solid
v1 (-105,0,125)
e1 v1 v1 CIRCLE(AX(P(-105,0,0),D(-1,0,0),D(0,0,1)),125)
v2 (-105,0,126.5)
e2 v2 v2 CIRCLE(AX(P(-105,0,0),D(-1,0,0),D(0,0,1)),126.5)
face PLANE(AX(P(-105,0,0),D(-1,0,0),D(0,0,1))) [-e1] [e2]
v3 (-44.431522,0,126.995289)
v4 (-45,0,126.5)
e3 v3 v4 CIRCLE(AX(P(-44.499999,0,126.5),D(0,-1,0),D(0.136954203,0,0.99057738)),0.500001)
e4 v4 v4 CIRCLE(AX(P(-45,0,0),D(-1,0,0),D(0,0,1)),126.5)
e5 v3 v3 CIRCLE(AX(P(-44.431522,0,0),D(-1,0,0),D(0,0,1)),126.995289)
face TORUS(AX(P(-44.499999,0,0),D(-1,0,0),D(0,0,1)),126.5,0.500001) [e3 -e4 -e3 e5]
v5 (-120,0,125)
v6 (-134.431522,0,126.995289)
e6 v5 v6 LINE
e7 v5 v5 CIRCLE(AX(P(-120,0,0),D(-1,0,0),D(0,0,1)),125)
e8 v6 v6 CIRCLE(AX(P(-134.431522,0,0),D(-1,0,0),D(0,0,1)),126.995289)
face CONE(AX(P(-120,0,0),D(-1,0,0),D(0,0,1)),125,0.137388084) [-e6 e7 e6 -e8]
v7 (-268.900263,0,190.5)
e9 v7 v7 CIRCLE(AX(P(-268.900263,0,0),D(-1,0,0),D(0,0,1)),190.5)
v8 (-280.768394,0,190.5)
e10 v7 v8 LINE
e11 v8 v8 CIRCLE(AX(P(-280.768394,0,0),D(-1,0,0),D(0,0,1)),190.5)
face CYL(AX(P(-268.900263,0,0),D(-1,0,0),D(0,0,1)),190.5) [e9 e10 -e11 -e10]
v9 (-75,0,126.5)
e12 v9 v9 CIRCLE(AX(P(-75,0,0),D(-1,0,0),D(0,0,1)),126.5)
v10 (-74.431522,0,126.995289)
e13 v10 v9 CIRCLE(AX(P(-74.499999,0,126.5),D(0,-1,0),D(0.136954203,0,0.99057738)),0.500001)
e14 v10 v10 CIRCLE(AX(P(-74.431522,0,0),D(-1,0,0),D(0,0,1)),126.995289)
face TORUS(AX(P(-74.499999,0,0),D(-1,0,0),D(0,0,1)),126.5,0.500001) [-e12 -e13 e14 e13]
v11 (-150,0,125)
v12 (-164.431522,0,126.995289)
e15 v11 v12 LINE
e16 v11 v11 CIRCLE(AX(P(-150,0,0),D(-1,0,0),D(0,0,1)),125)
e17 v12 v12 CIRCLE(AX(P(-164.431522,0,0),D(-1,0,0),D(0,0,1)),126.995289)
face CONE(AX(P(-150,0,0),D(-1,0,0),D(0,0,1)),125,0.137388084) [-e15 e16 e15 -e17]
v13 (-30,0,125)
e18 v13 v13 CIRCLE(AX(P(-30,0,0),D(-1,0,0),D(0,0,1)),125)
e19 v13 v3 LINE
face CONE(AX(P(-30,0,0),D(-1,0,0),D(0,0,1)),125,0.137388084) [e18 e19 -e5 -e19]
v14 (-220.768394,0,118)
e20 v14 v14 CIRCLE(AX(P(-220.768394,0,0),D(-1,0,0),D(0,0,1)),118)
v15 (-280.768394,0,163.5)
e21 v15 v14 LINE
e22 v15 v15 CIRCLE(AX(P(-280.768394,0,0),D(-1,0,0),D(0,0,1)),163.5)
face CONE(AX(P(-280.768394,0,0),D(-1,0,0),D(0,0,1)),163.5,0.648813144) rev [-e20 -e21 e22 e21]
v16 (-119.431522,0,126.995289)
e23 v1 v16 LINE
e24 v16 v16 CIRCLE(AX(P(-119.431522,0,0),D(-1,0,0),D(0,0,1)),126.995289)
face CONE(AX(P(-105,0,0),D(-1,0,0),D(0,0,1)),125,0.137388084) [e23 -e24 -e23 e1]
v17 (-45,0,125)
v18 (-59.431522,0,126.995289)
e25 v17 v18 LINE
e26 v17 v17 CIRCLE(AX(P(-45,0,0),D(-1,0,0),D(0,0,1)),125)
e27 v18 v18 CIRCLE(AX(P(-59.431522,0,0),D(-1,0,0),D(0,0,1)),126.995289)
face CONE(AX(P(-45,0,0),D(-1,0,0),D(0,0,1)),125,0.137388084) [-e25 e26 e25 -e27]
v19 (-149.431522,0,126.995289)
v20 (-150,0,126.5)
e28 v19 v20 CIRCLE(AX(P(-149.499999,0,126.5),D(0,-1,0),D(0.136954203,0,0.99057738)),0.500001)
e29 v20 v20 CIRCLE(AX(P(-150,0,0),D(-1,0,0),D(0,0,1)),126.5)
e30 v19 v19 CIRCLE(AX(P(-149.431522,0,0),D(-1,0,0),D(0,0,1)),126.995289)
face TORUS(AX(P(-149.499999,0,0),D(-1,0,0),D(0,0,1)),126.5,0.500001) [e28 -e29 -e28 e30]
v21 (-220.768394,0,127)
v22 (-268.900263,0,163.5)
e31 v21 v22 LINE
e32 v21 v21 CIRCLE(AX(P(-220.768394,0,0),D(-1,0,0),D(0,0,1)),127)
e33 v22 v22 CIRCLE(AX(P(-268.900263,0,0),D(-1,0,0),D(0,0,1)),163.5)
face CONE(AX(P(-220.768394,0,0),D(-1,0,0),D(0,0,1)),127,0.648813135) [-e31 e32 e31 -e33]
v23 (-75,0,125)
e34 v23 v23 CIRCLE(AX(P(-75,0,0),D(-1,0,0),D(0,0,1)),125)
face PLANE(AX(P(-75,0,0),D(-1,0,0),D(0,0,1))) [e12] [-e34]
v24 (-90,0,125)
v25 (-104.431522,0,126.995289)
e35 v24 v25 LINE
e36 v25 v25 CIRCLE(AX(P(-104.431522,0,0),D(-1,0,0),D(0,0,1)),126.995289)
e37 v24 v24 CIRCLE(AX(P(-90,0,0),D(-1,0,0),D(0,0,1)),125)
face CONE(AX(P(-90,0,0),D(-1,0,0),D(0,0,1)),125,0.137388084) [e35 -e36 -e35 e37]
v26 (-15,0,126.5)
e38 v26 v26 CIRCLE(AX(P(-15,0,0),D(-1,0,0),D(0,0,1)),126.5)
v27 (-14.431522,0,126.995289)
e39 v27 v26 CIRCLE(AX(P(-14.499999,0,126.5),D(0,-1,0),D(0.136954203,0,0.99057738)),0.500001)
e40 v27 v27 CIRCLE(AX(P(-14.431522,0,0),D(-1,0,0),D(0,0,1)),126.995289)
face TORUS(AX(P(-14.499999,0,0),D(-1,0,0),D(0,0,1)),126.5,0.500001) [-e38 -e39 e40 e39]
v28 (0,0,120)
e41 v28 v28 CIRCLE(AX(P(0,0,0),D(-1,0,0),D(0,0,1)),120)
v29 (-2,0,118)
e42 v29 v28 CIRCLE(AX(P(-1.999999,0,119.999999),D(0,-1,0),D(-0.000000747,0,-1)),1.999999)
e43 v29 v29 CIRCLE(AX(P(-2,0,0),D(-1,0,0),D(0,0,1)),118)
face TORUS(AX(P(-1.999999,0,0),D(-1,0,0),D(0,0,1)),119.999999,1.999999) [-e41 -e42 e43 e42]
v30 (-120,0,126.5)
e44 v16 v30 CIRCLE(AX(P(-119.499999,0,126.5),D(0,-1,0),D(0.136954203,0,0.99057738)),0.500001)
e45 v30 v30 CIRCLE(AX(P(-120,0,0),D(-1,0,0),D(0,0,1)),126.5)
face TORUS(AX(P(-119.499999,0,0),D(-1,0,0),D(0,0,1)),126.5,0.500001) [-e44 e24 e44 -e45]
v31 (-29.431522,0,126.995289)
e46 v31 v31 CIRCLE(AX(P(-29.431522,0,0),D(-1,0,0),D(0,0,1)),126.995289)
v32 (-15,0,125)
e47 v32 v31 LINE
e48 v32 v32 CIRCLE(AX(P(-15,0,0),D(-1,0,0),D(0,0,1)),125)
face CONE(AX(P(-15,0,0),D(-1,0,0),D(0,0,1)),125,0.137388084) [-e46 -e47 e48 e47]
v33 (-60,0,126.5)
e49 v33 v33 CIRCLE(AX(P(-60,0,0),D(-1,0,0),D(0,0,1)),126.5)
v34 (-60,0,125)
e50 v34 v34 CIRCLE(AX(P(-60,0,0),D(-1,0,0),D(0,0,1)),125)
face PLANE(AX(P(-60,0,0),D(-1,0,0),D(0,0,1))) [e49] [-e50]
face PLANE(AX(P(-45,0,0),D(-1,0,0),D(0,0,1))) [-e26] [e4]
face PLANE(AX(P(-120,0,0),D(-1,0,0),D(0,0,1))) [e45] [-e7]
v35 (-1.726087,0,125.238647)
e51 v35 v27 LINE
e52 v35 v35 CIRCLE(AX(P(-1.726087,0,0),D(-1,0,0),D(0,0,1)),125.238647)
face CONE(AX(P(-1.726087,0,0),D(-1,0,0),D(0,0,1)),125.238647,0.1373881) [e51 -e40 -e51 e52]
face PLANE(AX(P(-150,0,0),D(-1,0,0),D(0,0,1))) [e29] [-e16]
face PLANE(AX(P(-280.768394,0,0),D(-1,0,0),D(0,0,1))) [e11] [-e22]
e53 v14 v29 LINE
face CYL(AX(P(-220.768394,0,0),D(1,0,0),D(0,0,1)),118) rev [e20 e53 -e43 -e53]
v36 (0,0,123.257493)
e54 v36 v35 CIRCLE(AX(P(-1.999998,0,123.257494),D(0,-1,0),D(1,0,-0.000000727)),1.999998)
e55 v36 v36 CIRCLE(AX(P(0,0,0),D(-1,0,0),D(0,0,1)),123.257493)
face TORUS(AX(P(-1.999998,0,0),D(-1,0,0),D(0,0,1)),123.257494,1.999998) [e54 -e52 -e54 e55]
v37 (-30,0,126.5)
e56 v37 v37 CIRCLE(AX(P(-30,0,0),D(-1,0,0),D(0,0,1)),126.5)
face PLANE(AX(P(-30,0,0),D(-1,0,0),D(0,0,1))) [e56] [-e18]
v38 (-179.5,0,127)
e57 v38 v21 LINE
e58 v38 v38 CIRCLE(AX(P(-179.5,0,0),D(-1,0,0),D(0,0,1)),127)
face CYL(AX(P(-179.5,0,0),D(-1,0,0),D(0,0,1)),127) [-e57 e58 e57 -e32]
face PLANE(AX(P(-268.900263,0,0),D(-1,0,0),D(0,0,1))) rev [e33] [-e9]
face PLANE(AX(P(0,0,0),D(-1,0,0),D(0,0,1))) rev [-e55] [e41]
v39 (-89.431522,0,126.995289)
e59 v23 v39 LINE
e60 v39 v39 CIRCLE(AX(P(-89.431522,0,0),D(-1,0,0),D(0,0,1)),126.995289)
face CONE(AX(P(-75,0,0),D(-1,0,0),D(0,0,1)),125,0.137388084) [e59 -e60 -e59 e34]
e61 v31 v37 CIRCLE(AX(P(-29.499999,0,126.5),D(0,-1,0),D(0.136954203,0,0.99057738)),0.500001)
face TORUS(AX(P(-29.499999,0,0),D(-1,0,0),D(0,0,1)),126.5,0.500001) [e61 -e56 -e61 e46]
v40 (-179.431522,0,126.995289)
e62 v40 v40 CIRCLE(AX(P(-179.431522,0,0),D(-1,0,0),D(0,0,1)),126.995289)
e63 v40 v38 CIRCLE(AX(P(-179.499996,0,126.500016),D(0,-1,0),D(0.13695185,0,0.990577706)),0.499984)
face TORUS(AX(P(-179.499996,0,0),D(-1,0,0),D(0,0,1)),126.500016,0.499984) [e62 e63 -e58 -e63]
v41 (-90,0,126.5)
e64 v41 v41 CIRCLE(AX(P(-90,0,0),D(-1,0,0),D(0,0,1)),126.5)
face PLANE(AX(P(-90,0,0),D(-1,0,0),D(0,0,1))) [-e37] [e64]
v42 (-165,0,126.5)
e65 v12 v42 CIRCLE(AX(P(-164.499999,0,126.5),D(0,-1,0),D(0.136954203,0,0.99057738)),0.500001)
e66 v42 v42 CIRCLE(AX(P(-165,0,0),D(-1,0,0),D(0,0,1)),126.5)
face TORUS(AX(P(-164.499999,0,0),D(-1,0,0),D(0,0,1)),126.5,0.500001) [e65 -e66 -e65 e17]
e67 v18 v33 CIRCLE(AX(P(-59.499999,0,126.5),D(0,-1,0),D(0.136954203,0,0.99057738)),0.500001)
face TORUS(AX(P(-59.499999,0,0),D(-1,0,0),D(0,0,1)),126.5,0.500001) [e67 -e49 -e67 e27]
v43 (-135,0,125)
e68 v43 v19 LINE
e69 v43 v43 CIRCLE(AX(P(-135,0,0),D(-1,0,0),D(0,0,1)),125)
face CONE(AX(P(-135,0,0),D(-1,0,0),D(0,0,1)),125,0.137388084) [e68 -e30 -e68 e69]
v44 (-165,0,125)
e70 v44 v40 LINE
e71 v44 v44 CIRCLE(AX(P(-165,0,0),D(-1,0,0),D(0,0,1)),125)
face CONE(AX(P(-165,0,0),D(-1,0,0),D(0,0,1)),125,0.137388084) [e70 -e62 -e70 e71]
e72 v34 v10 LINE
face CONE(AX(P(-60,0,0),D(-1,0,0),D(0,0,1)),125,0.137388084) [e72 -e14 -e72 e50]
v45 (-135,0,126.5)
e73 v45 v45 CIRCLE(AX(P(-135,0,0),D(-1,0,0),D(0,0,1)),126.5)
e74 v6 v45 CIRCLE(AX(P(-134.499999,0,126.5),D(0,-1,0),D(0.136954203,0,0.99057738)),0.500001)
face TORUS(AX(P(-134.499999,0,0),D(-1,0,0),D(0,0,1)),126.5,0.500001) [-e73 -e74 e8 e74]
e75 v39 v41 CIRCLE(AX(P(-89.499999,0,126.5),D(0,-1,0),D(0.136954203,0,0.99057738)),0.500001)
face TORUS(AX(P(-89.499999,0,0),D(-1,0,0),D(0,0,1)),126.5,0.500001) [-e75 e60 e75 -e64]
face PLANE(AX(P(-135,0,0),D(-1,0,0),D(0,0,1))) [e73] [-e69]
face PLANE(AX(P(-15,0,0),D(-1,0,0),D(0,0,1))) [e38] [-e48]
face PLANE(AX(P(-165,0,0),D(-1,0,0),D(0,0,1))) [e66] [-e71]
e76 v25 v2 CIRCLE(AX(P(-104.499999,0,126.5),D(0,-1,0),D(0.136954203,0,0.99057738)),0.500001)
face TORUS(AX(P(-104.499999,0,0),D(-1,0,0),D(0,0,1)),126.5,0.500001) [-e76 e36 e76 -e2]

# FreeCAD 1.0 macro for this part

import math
import FreeCAD as App
import Part
import Sketcher
from FreeCAD import Vector

doc = App.newDocument("Part")
body = doc.addObject("PartDesign::Body", "Body")

sketch1 = body.newObject("Sketcher::SketchObject", "Sketch")
sketch1.AttachmentSupport = (doc.getObject("XZ_Plane"), [""])
sketch1.MapMode = "FlatFace"
sketch1.addGeometry([
    Part.ArcOfCircle(Part.Circle(Vector(-1.999998, 123.257494, 0), Vector(0, 0, 1), 1.999998), math.radians(-0.000042), math.radians(82.128275)),
    Part.LineSegment(Vector(-1.726087, 125.238647, 0), Vector(-14.431522, 126.995289, 0)),
    Part.ArcOfCircle(Part.Circle(Vector(-14.499999, 126.5, 0), Vector(0, 0, 1), 0.500001), math.radians(82.128363), math.radians(179.999946)),
    Part.LineSegment(Vector(-15, 126.5, 0), Vector(-15, 125, 0)),
    Part.LineSegment(Vector(-15, 125, 0), Vector(-29.431522, 126.995289, 0)),
    Part.ArcOfCircle(Part.Circle(Vector(-29.499999, 126.5, 0), Vector(0, 0, 1), 0.500001), math.radians(82.128363), math.radians(179.999946)),
    Part.LineSegment(Vector(-30, 126.5, 0), Vector(-30, 125, 0)),
    Part.LineSegment(Vector(-30, 125, 0), Vector(-44.431522, 126.995289, 0)),
    Part.ArcOfCircle(Part.Circle(Vector(-44.499999, 126.5, 0), Vector(0, 0, 1), 0.500001), math.radians(82.128363), math.radians(179.999946)),
    Part.LineSegment(Vector(-45, 126.5, 0), Vector(-45, 125, 0)),
    Part.LineSegment(Vector(-45, 125, 0), Vector(-59.431522, 126.995289, 0)),
    Part.ArcOfCircle(Part.Circle(Vector(-59.499999, 126.5, 0), Vector(0, 0, 1), 0.500001), math.radians(82.128363), math.radians(179.999946)),
    Part.LineSegment(Vector(-60, 126.5, 0), Vector(-60, 125, 0)),
    Part.LineSegment(Vector(-60, 125, 0), Vector(-74.431522, 126.995289, 0)),
    Part.ArcOfCircle(Part.Circle(Vector(-74.499999, 126.5, 0), Vector(0, 0, 1), 0.500001), math.radians(82.128363), math.radians(179.999946)),
    Part.LineSegment(Vector(-75, 126.5, 0), Vector(-75, 125, 0)),
    Part.LineSegment(Vector(-75, 125, 0), Vector(-89.431522, 126.995289, 0)),
    Part.ArcOfCircle(Part.Circle(Vector(-89.499999, 126.5, 0), Vector(0, 0, 1), 0.500001), math.radians(82.128363), math.radians(179.999946)),
    Part.LineSegment(Vector(-90, 126.5, 0), Vector(-90, 125, 0)),
    Part.LineSegment(Vector(-90, 125, 0), Vector(-104.431522, 126.995289, 0)),
    Part.ArcOfCircle(Part.Circle(Vector(-104.499999, 126.5, 0), Vector(0, 0, 1), 0.500001), math.radians(82.128363), math.radians(179.999946)),
    Part.LineSegment(Vector(-105, 126.5, 0), Vector(-105, 125, 0)),
    Part.LineSegment(Vector(-105, 125, 0), Vector(-119.431522, 126.995289, 0)),
    Part.ArcOfCircle(Part.Circle(Vector(-119.499999, 126.5, 0), Vector(0, 0, 1), 0.500001), math.radians(82.128363), math.radians(179.999946)),
    Part.LineSegment(Vector(-120, 126.5, 0), Vector(-120, 125, 0)),
    Part.LineSegment(Vector(-120, 125, 0), Vector(-134.431522, 126.995289, 0)),
    Part.ArcOfCircle(Part.Circle(Vector(-134.499999, 126.5, 0), Vector(0, 0, 1), 0.500001), math.radians(82.128363), math.radians(179.999946)),
    Part.LineSegment(Vector(-135, 126.5, 0), Vector(-135, 125, 0)),
    Part.LineSegment(Vector(-135, 125, 0), Vector(-149.431522, 126.995289, 0)),
    Part.ArcOfCircle(Part.Circle(Vector(-149.499999, 126.5, 0), Vector(0, 0, 1), 0.500001), math.radians(82.128363), math.radians(179.999946)),
    Part.LineSegment(Vector(-150, 126.5, 0), Vector(-150, 125, 0)),
    Part.LineSegment(Vector(-150, 125, 0), Vector(-164.431522, 126.995289, 0)),
    Part.ArcOfCircle(Part.Circle(Vector(-164.499999, 126.5, 0), Vector(0, 0, 1), 0.500001), math.radians(82.128363), math.radians(179.999946)),
    Part.LineSegment(Vector(-165, 126.5, 0), Vector(-165, 125, 0)),
    Part.LineSegment(Vector(-165, 125, 0), Vector(-179.431522, 126.995289, 0)),
    Part.ArcOfCircle(Part.Circle(Vector(-179.499996, 126.500016, 0), Vector(0, 0, 1), 0.499984), math.radians(82.128499), math.radians(90.000483)),
    Part.LineSegment(Vector(-179.5, 127, 0), Vector(-220.768394, 127, 0)),
    Part.LineSegment(Vector(-220.768394, 127, 0), Vector(-268.900263, 163.5, 0)),
    Part.LineSegment(Vector(-268.900263, 163.5, 0), Vector(-268.900263, 190.5, 0)),
    Part.LineSegment(Vector(-268.900263, 190.5, 0), Vector(-280.768394, 190.5, 0)),
    Part.LineSegment(Vector(-280.768394, 190.5, 0), Vector(-280.768394, 163.5, 0)),
    Part.LineSegment(Vector(-280.768394, 163.5, 0), Vector(-220.768394, 118, 0)),
    Part.LineSegment(Vector(-220.768394, 118, 0), Vector(-2, 118, 0)),
    Part.ArcOfCircle(Part.Circle(Vector(-1.999999, 119.999999, 0), Vector(0, 0, 1), 1.999999), math.radians(-90.000043), math.radians(0.000043)),
    Part.LineSegment(Vector(0, 120, 0), Vector(0, 123.257493, 0)),
], False)
sketch1.addConstraint([
    Sketcher.Constraint("Tangent", 0, 2, 1, 1),
    Sketcher.Constraint("Coincident", 1, 2, 2, 1),
    Sketcher.Constraint("Tangent", 2, 2, 3, 1),
    Sketcher.Constraint("Coincident", 3, 2, 4, 1),
    Sketcher.Constraint("Coincident", 4, 2, 5, 1),
    Sketcher.Constraint("Tangent", 5, 2, 6, 1),
    Sketcher.Constraint("Coincident", 6, 2, 7, 1),
    Sketcher.Constraint("Coincident", 7, 2, 8, 1),
    Sketcher.Constraint("Tangent", 8, 2, 9, 1),
    Sketcher.Constraint("Coincident", 9, 2, 10, 1),
    Sketcher.Constraint("Coincident", 10, 2, 11, 1),
    Sketcher.Constraint("Tangent", 11, 2, 12, 1),
    Sketcher.Constraint("Coincident", 12, 2, 13, 1),
    Sketcher.Constraint("Coincident", 13, 2, 14, 1),
    Sketcher.Constraint("Tangent", 14, 2, 15, 1),
    Sketcher.Constraint("Coincident", 15, 2, 16, 1),
    Sketcher.Constraint("Coincident", 16, 2, 17, 1),
    Sketcher.Constraint("Tangent", 17, 2, 18, 1),
    Sketcher.Constraint("Coincident", 18, 2, 19, 1),
    Sketcher.Constraint("Coincident", 19, 2, 20, 1),
    Sketcher.Constraint("Tangent", 20, 2, 21, 1),
    Sketcher.Constraint("Coincident", 21, 2, 22, 1),
    Sketcher.Constraint("Coincident", 22, 2, 23, 1),
    Sketcher.Constraint("Tangent", 23, 2, 24, 1),
    Sketcher.Constraint("Coincident", 24, 2, 25, 1),
    Sketcher.Constraint("Coincident", 25, 2, 26, 1),
    Sketcher.Constraint("Tangent", 26, 2, 27, 1),
    Sketcher.Constraint("Coincident", 27, 2, 28, 1),
    Sketcher.Constraint("Coincident", 28, 2, 29, 1),
    Sketcher.Constraint("Tangent", 29, 2, 30, 1),
    Sketcher.Constraint("Coincident", 30, 2, 31, 1),
    Sketcher.Constraint("Coincident", 31, 2, 32, 1),
    Sketcher.Constraint("Tangent", 32, 2, 33, 1),
    Sketcher.Constraint("Coincident", 33, 2, 34, 1),
    Sketcher.Constraint("Coincident", 34, 2, 35, 1),
    Sketcher.Constraint("Coincident", 35, 2, 36, 1),
    Sketcher.Constraint("Coincident", 36, 2, 37, 1),
    Sketcher.Constraint("Coincident", 37, 2, 38, 1),
    Sketcher.Constraint("Coincident", 38, 2, 39, 1),
    Sketcher.Constraint("Coincident", 39, 2, 40, 1),
    Sketcher.Constraint("Coincident", 40, 2, 41, 1),
    Sketcher.Constraint("Coincident", 41, 2, 42, 1),
    Sketcher.Constraint("Tangent", 42, 2, 43, 1),
    Sketcher.Constraint("Tangent", 43, 2, 44, 1),
    Sketcher.Constraint("Tangent", 44, 2, 0, 1),
    Sketcher.Constraint("Vertical", 3),
    Sketcher.Constraint("Vertical", 6),
    Sketcher.Constraint("Vertical", 9),
    Sketcher.Constraint("Vertical", 12),
    Sketcher.Constraint("Vertical", 15),
    Sketcher.Constraint("Vertical", 18),
    Sketcher.Constraint("Vertical", 21),
    Sketcher.Constraint("Vertical", 24),
    Sketcher.Constraint("Vertical", 27),
    Sketcher.Constraint("Vertical", 30),
    Sketcher.Constraint("Vertical", 33),
    Sketcher.Constraint("Horizontal", 36),
    Sketcher.Constraint("Vertical", 38),
    Sketcher.Constraint("Horizontal", 39),
    Sketcher.Constraint("Vertical", 40),
    Sketcher.Constraint("Horizontal", 42),
    Sketcher.Constraint("Vertical", 44),
    Sketcher.Constraint("Equal", 2, 5),
    Sketcher.Constraint("Equal", 5, 8),
    Sketcher.Constraint("Equal", 8, 11),
    Sketcher.Constraint("Equal", 11, 14),
    Sketcher.Constraint("Equal", 14, 17),
    Sketcher.Constraint("Equal", 17, 20),
    Sketcher.Constraint("Equal", 20, 23),
    Sketcher.Constraint("Equal", 23, 26),
    Sketcher.Constraint("Equal", 26, 29),
    Sketcher.Constraint("Equal", 29, 32),
    Sketcher.Constraint("Equal", 0, 43),
    Sketcher.Constraint("PointOnObject", 43, 2, -2),
    Sketcher.Constraint("Parallel", 1, 4),
    Sketcher.Constraint("Parallel", 4, 7),
    Sketcher.Constraint("Parallel", 7, 10),
    Sketcher.Constraint("Parallel", 10, 13),
    Sketcher.Constraint("Parallel", 13, 16),
    Sketcher.Constraint("Parallel", 16, 19),
    Sketcher.Constraint("Parallel", 19, 22),
    Sketcher.Constraint("Parallel", 22, 25),
    Sketcher.Constraint("Parallel", 25, 28),
    Sketcher.Constraint("Parallel", 28, 31),
    Sketcher.Constraint("Parallel", 31, 34),
    Sketcher.Constraint("Parallel", 37, 41),
    Sketcher.Constraint("Horizontal", 2, 3, 5, 3),
    Sketcher.Constraint("Horizontal", 5, 3, 8, 3),
    Sketcher.Constraint("Horizontal", 8, 3, 11, 3),
    Sketcher.Constraint("Horizontal", 11, 3, 14, 3),
    Sketcher.Constraint("Horizontal", 14, 3, 17, 3),
    Sketcher.Constraint("Horizontal", 17, 3, 20, 3),
    Sketcher.Constraint("Horizontal", 20, 3, 23, 3),
    Sketcher.Constraint("Horizontal", 23, 3, 26, 3),
    Sketcher.Constraint("Horizontal", 26, 3, 29, 3),
    Sketcher.Constraint("Horizontal", 29, 3, 32, 3),
    Sketcher.Constraint("Horizontal", 1, 2, 4, 2),
    Sketcher.Constraint("Horizontal", 3, 2, 6, 2),
    Sketcher.Constraint("Horizontal", 4, 2, 7, 2),
    Sketcher.Constraint("Horizontal", 6, 2, 9, 2),
    Sketcher.Constraint("Horizontal", 7, 2, 10, 2),
    Sketcher.Constraint("Horizontal", 9, 2, 12, 2),
    Sketcher.Constraint("Horizontal", 10, 2, 13, 2),
    Sketcher.Constraint("Horizontal", 12, 2, 15, 2),
    Sketcher.Constraint("Horizontal", 13, 2, 16, 2),
    Sketcher.Constraint("Horizontal", 15, 2, 18, 2),
    Sketcher.Constraint("Horizontal", 16, 2, 19, 2),
    Sketcher.Constraint("Horizontal", 18, 2, 21, 2),
    Sketcher.Constraint("Horizontal", 19, 2, 22, 2),
    Sketcher.Constraint("Horizontal", 21, 2, 24, 2),
    Sketcher.Constraint("Horizontal", 22, 2, 25, 2),
    Sketcher.Constraint("Horizontal", 24, 2, 27, 2),
    Sketcher.Constraint("Horizontal", 25, 2, 28, 2),
    Sketcher.Constraint("Horizontal", 27, 2, 30, 2),
    Sketcher.Constraint("Horizontal", 28, 2, 31, 2),
    Sketcher.Constraint("Horizontal", 30, 2, 33, 2),
    Sketcher.Constraint("Horizontal", 31, 2, 34, 2),
    Sketcher.Constraint("Horizontal", 37, 2, 40, 2),
    Sketcher.Constraint("Vertical", 36, 2, 41, 2),
    Sketcher.Constraint("Radius", 0, 1.999998),
    Sketcher.Constraint("Radius", 2, 0.500001),
    Sketcher.Constraint("DistanceY", 38, 1, 38, 2, 27.0),
    Sketcher.Constraint("DistanceY", 3, 2, 3, 1, 1.5),
    Sketcher.Constraint("DistanceY", -1, 1, 43, 3, 119.999999),
    Sketcher.Constraint("DistanceX", 2, 2, -1, 1, 15.0),
    Sketcher.Constraint("DistanceY", -1, 1, 3, 2, 125.0),
    Sketcher.Constraint("DistanceX", 5, 2, -1, 1, 30.0),
    Sketcher.Constraint("DistanceY", -1, 1, 35, 2, 127.0),
    Sketcher.Constraint("DistanceX", 35, 2, 32, 3, 15.000001),
    Sketcher.Constraint("DistanceY", 32, 2, 37, 2, 37.0),
    Sketcher.Constraint("DistanceX", 39, 2, 36, 2, 60.0),
    Sketcher.Constraint("Radius", 35, 0.499984),
    Sketcher.Constraint("DistanceX", 36, 2, 35, 3, 41.268398),
    Sketcher.Constraint("DistanceX", 1, 2, -1, 1, 14.431522),
])
revolution = body.newObject("PartDesign::Revolution", "Revolution")
revolution.Profile = sketch1
revolution.ReferenceAxis = (sketch1, ["H_Axis"])
revolution.Angle = 360

doc.recompute()
